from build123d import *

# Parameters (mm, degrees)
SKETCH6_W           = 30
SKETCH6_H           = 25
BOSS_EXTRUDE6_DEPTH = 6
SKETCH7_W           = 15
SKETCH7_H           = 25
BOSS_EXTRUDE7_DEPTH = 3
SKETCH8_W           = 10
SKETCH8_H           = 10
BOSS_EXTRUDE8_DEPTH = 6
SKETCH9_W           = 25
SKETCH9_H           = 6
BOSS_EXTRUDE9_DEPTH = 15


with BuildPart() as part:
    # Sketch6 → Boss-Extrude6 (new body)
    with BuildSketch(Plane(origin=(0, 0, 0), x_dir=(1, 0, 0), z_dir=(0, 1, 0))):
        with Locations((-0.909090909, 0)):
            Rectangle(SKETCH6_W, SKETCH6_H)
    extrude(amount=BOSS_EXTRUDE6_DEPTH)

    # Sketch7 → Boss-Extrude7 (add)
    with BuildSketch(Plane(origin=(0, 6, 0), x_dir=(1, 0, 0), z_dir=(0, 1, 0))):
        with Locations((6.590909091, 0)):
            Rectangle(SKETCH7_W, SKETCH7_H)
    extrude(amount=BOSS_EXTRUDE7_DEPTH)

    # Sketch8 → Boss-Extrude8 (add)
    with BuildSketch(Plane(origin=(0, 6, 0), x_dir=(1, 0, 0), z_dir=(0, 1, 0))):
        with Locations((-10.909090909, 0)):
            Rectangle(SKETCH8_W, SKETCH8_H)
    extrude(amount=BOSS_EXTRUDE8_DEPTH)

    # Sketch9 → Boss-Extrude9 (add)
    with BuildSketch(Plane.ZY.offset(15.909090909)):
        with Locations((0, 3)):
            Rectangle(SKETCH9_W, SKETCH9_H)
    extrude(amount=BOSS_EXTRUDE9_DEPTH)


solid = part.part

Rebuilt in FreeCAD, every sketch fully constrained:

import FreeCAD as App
import Part
import Sketcher

V = App.Vector
Q = App.Units.Quantity


def add_polygon(sketch, points):
    """Adds a closed chain of lines whose ends are joined by coincident constraints."""
    first, n = sketch.GeometryCount, len(points)
    for a, b in zip(points, points[1:] + points[:1]):
        sketch.addGeometry(Part.LineSegment(App.Vector(*a, 0), App.Vector(*b, 0)), False)
    for i in range(n):
        sketch.addConstraint(Sketcher.Constraint("Coincident", first + i, 2, first + (i + 1) % n, 1))

doc = App.newDocument("Part")
body = doc.addObject("PartDesign::Body", "Body")

# Sketch on XZ plane
sketch1 = doc.addObject("Sketcher::SketchObject", "Sketch")
body.addObject(sketch1)
sketch1.AttachmentSupport = (doc.XZ_Plane, [""])
sketch1.MapMode = "FlatFace"
add_polygon(sketch1, [(-16, -12), (-16, 12), (14, 12), (14, -12)])  # lines 0-3
sketch1.addConstraint([
    Sketcher.Constraint("Vertical", 0),
    Sketcher.Constraint("Horizontal", 1),
    Sketcher.Constraint("Vertical", 2),
    Sketcher.Constraint("Horizontal", 3),
    Sketcher.Constraint("DistanceX", 1, 1, 1, 2, Q("30 mm")),
    Sketcher.Constraint("DistanceY", 0, 1, 0, 2, Q("25 mm")),
    Sketcher.Constraint("DistanceY", -1, 1, 0, 2, Q("12.5 mm")),
    Sketcher.Constraint("DistanceX", 0, 2, -1, 1, Q("15.909091 mm")),
])
pad1 = doc.addObject("PartDesign::Pad", "Pad")
body.addObject(pad1)
pad1.Profile = sketch1
pad1.Length = 6
pad1.Reversed = True

# Sketch on XZ plane
sketch2 = doc.addObject("Sketcher::SketchObject", "Sketch001")
body.addObject(sketch2)
sketch2.AttachmentSupport = (doc.XZ_Plane, [""])
sketch2.MapMode = "FlatFace"
sketch2.AttachmentOffset = App.Placement(V(0, 0, -6), App.Rotation())
add_polygon(sketch2, [(-1, -12), (-1, 12), (14, 12), (14, -12)])  # lines 0-3
sketch2.addConstraint([
    Sketcher.Constraint("Vertical", 0),
    Sketcher.Constraint("Horizontal", 1),
    Sketcher.Constraint("Vertical", 2),
    Sketcher.Constraint("Horizontal", 3),
    Sketcher.Constraint("DistanceX", 1, 1, 1, 2, Q("15 mm")),
    Sketcher.Constraint("DistanceY", 0, 1, 0, 2, Q("25 mm")),
    Sketcher.Constraint("DistanceY", -1, 1, 0, 2, Q("12.5 mm")),
    Sketcher.Constraint("DistanceX", 0, 2, -1, 1, Q("0.909091 mm")),
])
pad2 = doc.addObject("PartDesign::Pad", "Pad001")
body.addObject(pad2)
pad2.Profile = sketch2
pad2.Length = 3
pad2.Reversed = True

# Sketch on XZ plane
sketch3 = doc.addObject("Sketcher::SketchObject", "Sketch002")
body.addObject(sketch3)
sketch3.AttachmentSupport = (doc.XZ_Plane, [""])
sketch3.MapMode = "FlatFace"
sketch3.AttachmentOffset = App.Placement(V(0, 0, -6), App.Rotation())
add_polygon(sketch3, [(-16, -5), (-16, 5), (-6, 5), (-6, -5)])  # lines 0-3
sketch3.addConstraint([
    Sketcher.Constraint("Vertical", 0),
    Sketcher.Constraint("Horizontal", 1),
    Sketcher.Constraint("Vertical", 2),
    Sketcher.Constraint("Horizontal", 3),
    Sketcher.Constraint("Equal", 3, 0),
    Sketcher.Constraint("DistanceX", 1, 1, 1, 2, Q("10 mm")),
    Sketcher.Constraint("DistanceY", -1, 1, 0, 2, Q("5 mm")),
    Sketcher.Constraint("DistanceX", 0, 2, -1, 1, Q("15.909091 mm")),
])
pad3 = doc.addObject("PartDesign::Pad", "Pad002")
body.addObject(pad3)
pad3.Profile = sketch3
pad3.Length = 6
pad3.Reversed = True

# Sketch on YZ plane
sketch4 = doc.addObject("Sketcher::SketchObject", "Sketch003")
body.addObject(sketch4)
sketch4.AttachmentSupport = (doc.YZ_Plane, [""])
sketch4.MapMode = "FlatFace"
sketch4.AttachmentOffset = App.Placement(V(0, 0, -15.909091), App.Rotation())
add_polygon(sketch4, [(6, -12), (0, -12), (0, 12), (6, 12)])  # lines 0-3
sketch4.addConstraint([
    Sketcher.Constraint("Horizontal", 0),
    Sketcher.Constraint("Vertical", 1),
    Sketcher.Constraint("Horizontal", 2),
    Sketcher.Constraint("Vertical", 3),
    Sketcher.Constraint("Symmetric", 0, 2, 1, 2, -1, 1),
    Sketcher.Constraint("DistanceX", 0, 2, 0, 1, Q("6 mm")),
    Sketcher.Constraint("DistanceY", 1, 1, 1, 2, Q("25 mm")),
])
pad4 = doc.addObject("PartDesign::Pad", "Pad003")
body.addObject(pad4)
pad4.Profile = sketch4
pad4.Length = 15
pad4.Reversed = True

doc.recompute()
